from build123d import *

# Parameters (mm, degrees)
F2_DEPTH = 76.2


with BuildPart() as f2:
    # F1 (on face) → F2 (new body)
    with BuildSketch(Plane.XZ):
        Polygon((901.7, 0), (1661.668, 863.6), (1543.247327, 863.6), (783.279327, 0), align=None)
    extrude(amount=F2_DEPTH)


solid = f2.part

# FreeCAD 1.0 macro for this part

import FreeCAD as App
import Part
import Sketcher

V = App.Vector
Q = App.Units.Quantity

doc = App.newDocument("Part")
body = doc.addObject("PartDesign::Body", "Body")

# Sketch on XZ plane
sketch1 = body.newObject("Sketcher::SketchObject", "Sketch")
sketch1.AttachmentSupport = (doc.getObject("XZ_Plane"), [""])
sketch1.MapMode = "FlatFace"
sketch1.addGeometry([
    Part.LineSegment(V(901.7, 0, 0), V(1661.668, 863.6, 0)),
    Part.LineSegment(V(1661.668, 863.6, 0), V(1543.247327, 863.6, 0)),
    Part.LineSegment(V(1543.247327, 863.6, 0), V(783.279327, 0, 0)),
    Part.LineSegment(V(783.279327, 0, 0), V(901.7, 0, 0)),
], False)
sketch1.addConstraint([
    Sketcher.Constraint("Coincident", 0, 2, 1, 1),
    Sketcher.Constraint("Coincident", 1, 2, 2, 1),
    Sketcher.Constraint("Coincident", 2, 2, 3, 1),
    Sketcher.Constraint("Coincident", 3, 2, 0, 1),
    Sketcher.Constraint("Horizontal", 1),
    Sketcher.Constraint("Horizontal", 3),
    Sketcher.Constraint("PointOnObject", 2, 2, -1),
    Sketcher.Constraint("Parallel", 0, 2),
    Sketcher.Constraint("DistanceY", -1, 1, 0, 2, Q("34 in")),
    Sketcher.Constraint("DistanceX", -1, 1, 3, 2, Q("35.5 in")),
    Sketcher.Constraint("DistanceX", -1, 1, 0, 2, Q("65.42 in")),
    Sketcher.Constraint("DistanceX", 1, 2, 1, 1, 118.420673),
])
pad1 = body.newObject("PartDesign::Pad", "Pad")
pad1.Profile = sketch1
pad1.Length = Q("3 in")

doc.recompute()
